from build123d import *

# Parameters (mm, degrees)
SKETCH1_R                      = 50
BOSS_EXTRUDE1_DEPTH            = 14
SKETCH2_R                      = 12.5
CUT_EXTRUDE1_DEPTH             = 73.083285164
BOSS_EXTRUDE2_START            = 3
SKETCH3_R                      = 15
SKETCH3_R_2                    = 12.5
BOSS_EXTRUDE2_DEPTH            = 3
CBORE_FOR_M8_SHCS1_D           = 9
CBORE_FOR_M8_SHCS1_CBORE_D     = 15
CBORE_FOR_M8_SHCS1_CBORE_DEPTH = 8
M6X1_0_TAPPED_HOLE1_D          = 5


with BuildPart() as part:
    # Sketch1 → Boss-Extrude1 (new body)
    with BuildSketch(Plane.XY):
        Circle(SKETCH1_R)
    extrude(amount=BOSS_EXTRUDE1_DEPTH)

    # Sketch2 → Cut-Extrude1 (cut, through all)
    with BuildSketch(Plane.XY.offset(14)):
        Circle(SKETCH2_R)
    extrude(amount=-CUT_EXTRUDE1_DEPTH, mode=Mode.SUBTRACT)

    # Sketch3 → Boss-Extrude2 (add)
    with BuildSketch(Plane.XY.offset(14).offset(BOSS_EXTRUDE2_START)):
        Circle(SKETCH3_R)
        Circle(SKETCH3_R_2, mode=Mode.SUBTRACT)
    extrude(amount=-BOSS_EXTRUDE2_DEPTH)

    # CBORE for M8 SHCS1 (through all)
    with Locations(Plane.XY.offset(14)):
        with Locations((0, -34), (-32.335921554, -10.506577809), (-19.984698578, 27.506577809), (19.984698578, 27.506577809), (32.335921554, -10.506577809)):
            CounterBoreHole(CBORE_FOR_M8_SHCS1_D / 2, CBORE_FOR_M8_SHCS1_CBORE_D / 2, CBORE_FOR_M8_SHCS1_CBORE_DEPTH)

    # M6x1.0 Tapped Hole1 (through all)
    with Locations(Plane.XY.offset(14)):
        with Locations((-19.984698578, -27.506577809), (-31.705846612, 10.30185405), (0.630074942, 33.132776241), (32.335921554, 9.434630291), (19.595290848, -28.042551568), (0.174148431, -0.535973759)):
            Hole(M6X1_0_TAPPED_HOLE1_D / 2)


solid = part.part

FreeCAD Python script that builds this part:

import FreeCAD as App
import Part
import Sketcher
Q = App.Units.Quantity

doc = App.newDocument("Part")
body = doc.addObject("PartDesign::Body", "Body")

# Sketch on XY plane
sketch1 = doc.addObject("Sketcher::SketchObject", "Sketch")
body.addObject(sketch1)
sketch1.AttachmentSupport = (doc.XY_Plane, [""])
sketch1.MapMode = "FlatFace"
sketch1.addGeometry(Part.Circle(App.Vector(0, 0, 0), App.Vector(0, 0, 1), 50), False)
sketch1.addConstraint([
    Sketcher.Constraint("Coincident", 0, 3, -1, 1),
    Sketcher.Constraint("Diameter", 0, Q("100 mm")),
])
pad1 = doc.addObject("PartDesign::Pad", "Pad")
body.addObject(pad1)
pad1.Profile = sketch1
pad1.Length = 14

# Sketch on XY plane
sketch2 = doc.addObject("Sketcher::SketchObject", "Sketch001")
body.addObject(sketch2)
sketch2.AttachmentSupport = (doc.XY_Plane, [""])
sketch2.MapMode = "FlatFace"
sketch2.AttachmentOffset = App.Placement(App.Vector(0, 0, 14), App.Rotation())
sketch2.addGeometry(Part.Circle(App.Vector(0, 0, 0), App.Vector(0, 0, 1), 12), False)
sketch2.addConstraint([
    Sketcher.Constraint("Coincident", 0, 3, -1, 1),
    Sketcher.Constraint("Diameter", 0, Q("25 mm")),
])
pocket1 = doc.addObject("PartDesign::Pocket", "Pocket")
body.addObject(pocket1)
pocket1.Profile = sketch2
pocket1.Type = "ThroughAll"

# Sketch on XY plane
sketch3 = doc.addObject("Sketcher::SketchObject", "Sketch002")
body.addObject(sketch3)
sketch3.AttachmentSupport = (doc.XY_Plane, [""])
sketch3.MapMode = "FlatFace"
sketch3.AttachmentOffset = App.Placement(App.Vector(0, 0, 17), App.Rotation())
sketch3.addGeometry([
    Part.Circle(App.Vector(0, 0, 0), App.Vector(0, 0, 1), 15),
    Part.Circle(App.Vector(0, 0, 0), App.Vector(0, 0, 1), 12),
], False)
sketch3.addConstraint([
    Sketcher.Constraint("Coincident", 0, 3, -1, 1),
    Sketcher.Constraint("Coincident", 1, 3, -1, 1),
    Sketcher.Constraint("Diameter", 0, Q("30 mm")),
    Sketcher.Constraint("Diameter", 1, Q("25 mm")),
])
pad2 = doc.addObject("PartDesign::Pad", "Pad001")
body.addObject(pad2)
pad2.Profile = sketch3
pad2.Length = 3
pad2.Reversed = True

# Sketch on XY plane
sketch4 = doc.addObject("Sketcher::SketchObject", "Sketch003")
body.addObject(sketch4)
sketch4.AttachmentSupport = (doc.XY_Plane, [""])
sketch4.MapMode = "FlatFace"
sketch4.AttachmentOffset = App.Placement(App.Vector(0, 0, 14), App.Rotation())
sketch4.addGeometry([
    Part.Circle(App.Vector(0, -34, 0), App.Vector(0, 0, 1), 4.5),  # 0
    Part.Circle(App.Vector(-32.3, -10.5, 0), App.Vector(0, 0, 1), 4.5),  # 1
    Part.Circle(App.Vector(-20, 27.5, 0), App.Vector(0, 0, 1), 4.5),  # 2
    Part.Circle(App.Vector(20, 27.5, 0), App.Vector(0, 0, 1), 4.5),  # 3
    Part.Circle(App.Vector(32.3, -10.5, 0), App.Vector(0, 0, 1), 4.5),  # 4
], False)
sketch4.addConstraint([
    Sketcher.Constraint("Equal", 0, 1),
    Sketcher.Constraint("Equal", 1, 2),
    Sketcher.Constraint("Equal", 2, 3),
    Sketcher.Constraint("Equal", 3, 4),
    Sketcher.Constraint("Symmetric", 2, 3, 3, 3, -2),
    Sketcher.Constraint("Symmetric", 1, 3, 4, 3, -2),
    Sketcher.Constraint("PointOnObject", 0, 3, -2),
    Sketcher.Constraint("Diameter", 0, Q("9 mm")),
    Sketcher.Constraint("DistanceY", 0, 3, -1, 1, Q("34 mm")),
    Sketcher.Constraint("DistanceX", 2, 3, -1, 1, Q("19.984699 mm")),
    Sketcher.Constraint("DistanceX", 1, 3, -1, 1, Q("32.335922 mm")),
    Sketcher.Constraint("DistanceY", 1, 3, -1, 1, Q("10.506578 mm")),
    Sketcher.Constraint("DistanceY", -1, 1, 2, 3, Q("27.506578 mm")),
])
doc.recompute()
hole = doc.addObject("PartDesign::Hole", "Hole")
body.addObject(hole)
hole.Profile = sketch4
hole.ThreadType = "None"
hole.Diameter = 9
hole.DepthType = "ThroughAll"
hole.HoleCutType = "Counterbore"
hole.HoleCutDiameter = 15
hole.HoleCutDepth = 8

# Sketch on XY plane
sketch5 = doc.addObject("Sketcher::SketchObject", "Sketch004")
body.addObject(sketch5)
sketch5.AttachmentSupport = (doc.XY_Plane, [""])
sketch5.MapMode = "FlatFace"
sketch5.AttachmentOffset = App.Placement(App.Vector(0, 0, 14), App.Rotation())
sketch5.addGeometry([
    Part.Circle(App.Vector(-20, -27.5, 0), App.Vector(0, 0, 1), 2.5),  # 0
    Part.Circle(App.Vector(-31.7, 10.3, 0), App.Vector(0, 0, 1), 2.5),  # 1
    Part.Circle(App.Vector(0.6, 33.1, 0), App.Vector(0, 0, 1), 2.5),  # 2
    Part.Circle(App.Vector(32.3, 9.4, 0), App.Vector(0, 0, 1), 2.5),  # 3
    Part.Circle(App.Vector(19.6, -28, 0), App.Vector(0, 0, 1), 2.5),  # 4
    Part.Circle(App.Vector(0.2, -0.5, 0), App.Vector(0, 0, 1), 2.5),  # 5
], False)
sketch5.addConstraint([
    Sketcher.Constraint("Equal", 0, 1),
    Sketcher.Constraint("Equal", 1, 2),
    Sketcher.Constraint("Equal", 2, 3),
    Sketcher.Constraint("Equal", 3, 4),
    Sketcher.Constraint("Equal", 4, 5),
    Sketcher.Constraint("Diameter", 0, Q("5 mm")),
    Sketcher.Constraint("DistanceX", 0, 3, -1, 1, Q("19.984699 mm")),
    Sketcher.Constraint("DistanceX", -1, 1, 3, 3, Q("32.335922 mm")),
    Sketcher.Constraint("DistanceY", -1, 1, 3, 3, Q("9.43463 mm")),
    Sketcher.Constraint("DistanceX", -1, 1, 4, 3, Q("19.595291 mm")),
    Sketcher.Constraint("DistanceY", 4, 3, -1, 1, Q("28.042552 mm")),
    Sketcher.Constraint("DistanceX", -1, 1, 5, 3, Q("0.174148 mm")),
    Sketcher.Constraint("DistanceX", 1, 3, 0, 3, Q("11.721148 mm")),
    Sketcher.Constraint("DistanceY", 0, 3, 1, 3, Q("37.808432 mm")),
    Sketcher.Constraint("DistanceX", 1, 3, 2, 3, Q("32.335922 mm")),
    Sketcher.Constraint("DistanceY", 0, 3, 3, 3, Q("36.941208 mm")),
    Sketcher.Constraint("DistanceY", 5, 3, 2, 3, Q("33.66875 mm")),
    Sketcher.Constraint("DistanceY", -1, 1, 2, 3, Q("33.132776 mm")),
])
doc.recompute()
hole2 = doc.addObject("PartDesign::Hole", "Hole001")
body.addObject(hole2)
hole2.Profile = sketch5
hole2.ThreadType = "None"
hole2.Diameter = 5
hole2.DepthType = "ThroughAll"

doc.recompute()
